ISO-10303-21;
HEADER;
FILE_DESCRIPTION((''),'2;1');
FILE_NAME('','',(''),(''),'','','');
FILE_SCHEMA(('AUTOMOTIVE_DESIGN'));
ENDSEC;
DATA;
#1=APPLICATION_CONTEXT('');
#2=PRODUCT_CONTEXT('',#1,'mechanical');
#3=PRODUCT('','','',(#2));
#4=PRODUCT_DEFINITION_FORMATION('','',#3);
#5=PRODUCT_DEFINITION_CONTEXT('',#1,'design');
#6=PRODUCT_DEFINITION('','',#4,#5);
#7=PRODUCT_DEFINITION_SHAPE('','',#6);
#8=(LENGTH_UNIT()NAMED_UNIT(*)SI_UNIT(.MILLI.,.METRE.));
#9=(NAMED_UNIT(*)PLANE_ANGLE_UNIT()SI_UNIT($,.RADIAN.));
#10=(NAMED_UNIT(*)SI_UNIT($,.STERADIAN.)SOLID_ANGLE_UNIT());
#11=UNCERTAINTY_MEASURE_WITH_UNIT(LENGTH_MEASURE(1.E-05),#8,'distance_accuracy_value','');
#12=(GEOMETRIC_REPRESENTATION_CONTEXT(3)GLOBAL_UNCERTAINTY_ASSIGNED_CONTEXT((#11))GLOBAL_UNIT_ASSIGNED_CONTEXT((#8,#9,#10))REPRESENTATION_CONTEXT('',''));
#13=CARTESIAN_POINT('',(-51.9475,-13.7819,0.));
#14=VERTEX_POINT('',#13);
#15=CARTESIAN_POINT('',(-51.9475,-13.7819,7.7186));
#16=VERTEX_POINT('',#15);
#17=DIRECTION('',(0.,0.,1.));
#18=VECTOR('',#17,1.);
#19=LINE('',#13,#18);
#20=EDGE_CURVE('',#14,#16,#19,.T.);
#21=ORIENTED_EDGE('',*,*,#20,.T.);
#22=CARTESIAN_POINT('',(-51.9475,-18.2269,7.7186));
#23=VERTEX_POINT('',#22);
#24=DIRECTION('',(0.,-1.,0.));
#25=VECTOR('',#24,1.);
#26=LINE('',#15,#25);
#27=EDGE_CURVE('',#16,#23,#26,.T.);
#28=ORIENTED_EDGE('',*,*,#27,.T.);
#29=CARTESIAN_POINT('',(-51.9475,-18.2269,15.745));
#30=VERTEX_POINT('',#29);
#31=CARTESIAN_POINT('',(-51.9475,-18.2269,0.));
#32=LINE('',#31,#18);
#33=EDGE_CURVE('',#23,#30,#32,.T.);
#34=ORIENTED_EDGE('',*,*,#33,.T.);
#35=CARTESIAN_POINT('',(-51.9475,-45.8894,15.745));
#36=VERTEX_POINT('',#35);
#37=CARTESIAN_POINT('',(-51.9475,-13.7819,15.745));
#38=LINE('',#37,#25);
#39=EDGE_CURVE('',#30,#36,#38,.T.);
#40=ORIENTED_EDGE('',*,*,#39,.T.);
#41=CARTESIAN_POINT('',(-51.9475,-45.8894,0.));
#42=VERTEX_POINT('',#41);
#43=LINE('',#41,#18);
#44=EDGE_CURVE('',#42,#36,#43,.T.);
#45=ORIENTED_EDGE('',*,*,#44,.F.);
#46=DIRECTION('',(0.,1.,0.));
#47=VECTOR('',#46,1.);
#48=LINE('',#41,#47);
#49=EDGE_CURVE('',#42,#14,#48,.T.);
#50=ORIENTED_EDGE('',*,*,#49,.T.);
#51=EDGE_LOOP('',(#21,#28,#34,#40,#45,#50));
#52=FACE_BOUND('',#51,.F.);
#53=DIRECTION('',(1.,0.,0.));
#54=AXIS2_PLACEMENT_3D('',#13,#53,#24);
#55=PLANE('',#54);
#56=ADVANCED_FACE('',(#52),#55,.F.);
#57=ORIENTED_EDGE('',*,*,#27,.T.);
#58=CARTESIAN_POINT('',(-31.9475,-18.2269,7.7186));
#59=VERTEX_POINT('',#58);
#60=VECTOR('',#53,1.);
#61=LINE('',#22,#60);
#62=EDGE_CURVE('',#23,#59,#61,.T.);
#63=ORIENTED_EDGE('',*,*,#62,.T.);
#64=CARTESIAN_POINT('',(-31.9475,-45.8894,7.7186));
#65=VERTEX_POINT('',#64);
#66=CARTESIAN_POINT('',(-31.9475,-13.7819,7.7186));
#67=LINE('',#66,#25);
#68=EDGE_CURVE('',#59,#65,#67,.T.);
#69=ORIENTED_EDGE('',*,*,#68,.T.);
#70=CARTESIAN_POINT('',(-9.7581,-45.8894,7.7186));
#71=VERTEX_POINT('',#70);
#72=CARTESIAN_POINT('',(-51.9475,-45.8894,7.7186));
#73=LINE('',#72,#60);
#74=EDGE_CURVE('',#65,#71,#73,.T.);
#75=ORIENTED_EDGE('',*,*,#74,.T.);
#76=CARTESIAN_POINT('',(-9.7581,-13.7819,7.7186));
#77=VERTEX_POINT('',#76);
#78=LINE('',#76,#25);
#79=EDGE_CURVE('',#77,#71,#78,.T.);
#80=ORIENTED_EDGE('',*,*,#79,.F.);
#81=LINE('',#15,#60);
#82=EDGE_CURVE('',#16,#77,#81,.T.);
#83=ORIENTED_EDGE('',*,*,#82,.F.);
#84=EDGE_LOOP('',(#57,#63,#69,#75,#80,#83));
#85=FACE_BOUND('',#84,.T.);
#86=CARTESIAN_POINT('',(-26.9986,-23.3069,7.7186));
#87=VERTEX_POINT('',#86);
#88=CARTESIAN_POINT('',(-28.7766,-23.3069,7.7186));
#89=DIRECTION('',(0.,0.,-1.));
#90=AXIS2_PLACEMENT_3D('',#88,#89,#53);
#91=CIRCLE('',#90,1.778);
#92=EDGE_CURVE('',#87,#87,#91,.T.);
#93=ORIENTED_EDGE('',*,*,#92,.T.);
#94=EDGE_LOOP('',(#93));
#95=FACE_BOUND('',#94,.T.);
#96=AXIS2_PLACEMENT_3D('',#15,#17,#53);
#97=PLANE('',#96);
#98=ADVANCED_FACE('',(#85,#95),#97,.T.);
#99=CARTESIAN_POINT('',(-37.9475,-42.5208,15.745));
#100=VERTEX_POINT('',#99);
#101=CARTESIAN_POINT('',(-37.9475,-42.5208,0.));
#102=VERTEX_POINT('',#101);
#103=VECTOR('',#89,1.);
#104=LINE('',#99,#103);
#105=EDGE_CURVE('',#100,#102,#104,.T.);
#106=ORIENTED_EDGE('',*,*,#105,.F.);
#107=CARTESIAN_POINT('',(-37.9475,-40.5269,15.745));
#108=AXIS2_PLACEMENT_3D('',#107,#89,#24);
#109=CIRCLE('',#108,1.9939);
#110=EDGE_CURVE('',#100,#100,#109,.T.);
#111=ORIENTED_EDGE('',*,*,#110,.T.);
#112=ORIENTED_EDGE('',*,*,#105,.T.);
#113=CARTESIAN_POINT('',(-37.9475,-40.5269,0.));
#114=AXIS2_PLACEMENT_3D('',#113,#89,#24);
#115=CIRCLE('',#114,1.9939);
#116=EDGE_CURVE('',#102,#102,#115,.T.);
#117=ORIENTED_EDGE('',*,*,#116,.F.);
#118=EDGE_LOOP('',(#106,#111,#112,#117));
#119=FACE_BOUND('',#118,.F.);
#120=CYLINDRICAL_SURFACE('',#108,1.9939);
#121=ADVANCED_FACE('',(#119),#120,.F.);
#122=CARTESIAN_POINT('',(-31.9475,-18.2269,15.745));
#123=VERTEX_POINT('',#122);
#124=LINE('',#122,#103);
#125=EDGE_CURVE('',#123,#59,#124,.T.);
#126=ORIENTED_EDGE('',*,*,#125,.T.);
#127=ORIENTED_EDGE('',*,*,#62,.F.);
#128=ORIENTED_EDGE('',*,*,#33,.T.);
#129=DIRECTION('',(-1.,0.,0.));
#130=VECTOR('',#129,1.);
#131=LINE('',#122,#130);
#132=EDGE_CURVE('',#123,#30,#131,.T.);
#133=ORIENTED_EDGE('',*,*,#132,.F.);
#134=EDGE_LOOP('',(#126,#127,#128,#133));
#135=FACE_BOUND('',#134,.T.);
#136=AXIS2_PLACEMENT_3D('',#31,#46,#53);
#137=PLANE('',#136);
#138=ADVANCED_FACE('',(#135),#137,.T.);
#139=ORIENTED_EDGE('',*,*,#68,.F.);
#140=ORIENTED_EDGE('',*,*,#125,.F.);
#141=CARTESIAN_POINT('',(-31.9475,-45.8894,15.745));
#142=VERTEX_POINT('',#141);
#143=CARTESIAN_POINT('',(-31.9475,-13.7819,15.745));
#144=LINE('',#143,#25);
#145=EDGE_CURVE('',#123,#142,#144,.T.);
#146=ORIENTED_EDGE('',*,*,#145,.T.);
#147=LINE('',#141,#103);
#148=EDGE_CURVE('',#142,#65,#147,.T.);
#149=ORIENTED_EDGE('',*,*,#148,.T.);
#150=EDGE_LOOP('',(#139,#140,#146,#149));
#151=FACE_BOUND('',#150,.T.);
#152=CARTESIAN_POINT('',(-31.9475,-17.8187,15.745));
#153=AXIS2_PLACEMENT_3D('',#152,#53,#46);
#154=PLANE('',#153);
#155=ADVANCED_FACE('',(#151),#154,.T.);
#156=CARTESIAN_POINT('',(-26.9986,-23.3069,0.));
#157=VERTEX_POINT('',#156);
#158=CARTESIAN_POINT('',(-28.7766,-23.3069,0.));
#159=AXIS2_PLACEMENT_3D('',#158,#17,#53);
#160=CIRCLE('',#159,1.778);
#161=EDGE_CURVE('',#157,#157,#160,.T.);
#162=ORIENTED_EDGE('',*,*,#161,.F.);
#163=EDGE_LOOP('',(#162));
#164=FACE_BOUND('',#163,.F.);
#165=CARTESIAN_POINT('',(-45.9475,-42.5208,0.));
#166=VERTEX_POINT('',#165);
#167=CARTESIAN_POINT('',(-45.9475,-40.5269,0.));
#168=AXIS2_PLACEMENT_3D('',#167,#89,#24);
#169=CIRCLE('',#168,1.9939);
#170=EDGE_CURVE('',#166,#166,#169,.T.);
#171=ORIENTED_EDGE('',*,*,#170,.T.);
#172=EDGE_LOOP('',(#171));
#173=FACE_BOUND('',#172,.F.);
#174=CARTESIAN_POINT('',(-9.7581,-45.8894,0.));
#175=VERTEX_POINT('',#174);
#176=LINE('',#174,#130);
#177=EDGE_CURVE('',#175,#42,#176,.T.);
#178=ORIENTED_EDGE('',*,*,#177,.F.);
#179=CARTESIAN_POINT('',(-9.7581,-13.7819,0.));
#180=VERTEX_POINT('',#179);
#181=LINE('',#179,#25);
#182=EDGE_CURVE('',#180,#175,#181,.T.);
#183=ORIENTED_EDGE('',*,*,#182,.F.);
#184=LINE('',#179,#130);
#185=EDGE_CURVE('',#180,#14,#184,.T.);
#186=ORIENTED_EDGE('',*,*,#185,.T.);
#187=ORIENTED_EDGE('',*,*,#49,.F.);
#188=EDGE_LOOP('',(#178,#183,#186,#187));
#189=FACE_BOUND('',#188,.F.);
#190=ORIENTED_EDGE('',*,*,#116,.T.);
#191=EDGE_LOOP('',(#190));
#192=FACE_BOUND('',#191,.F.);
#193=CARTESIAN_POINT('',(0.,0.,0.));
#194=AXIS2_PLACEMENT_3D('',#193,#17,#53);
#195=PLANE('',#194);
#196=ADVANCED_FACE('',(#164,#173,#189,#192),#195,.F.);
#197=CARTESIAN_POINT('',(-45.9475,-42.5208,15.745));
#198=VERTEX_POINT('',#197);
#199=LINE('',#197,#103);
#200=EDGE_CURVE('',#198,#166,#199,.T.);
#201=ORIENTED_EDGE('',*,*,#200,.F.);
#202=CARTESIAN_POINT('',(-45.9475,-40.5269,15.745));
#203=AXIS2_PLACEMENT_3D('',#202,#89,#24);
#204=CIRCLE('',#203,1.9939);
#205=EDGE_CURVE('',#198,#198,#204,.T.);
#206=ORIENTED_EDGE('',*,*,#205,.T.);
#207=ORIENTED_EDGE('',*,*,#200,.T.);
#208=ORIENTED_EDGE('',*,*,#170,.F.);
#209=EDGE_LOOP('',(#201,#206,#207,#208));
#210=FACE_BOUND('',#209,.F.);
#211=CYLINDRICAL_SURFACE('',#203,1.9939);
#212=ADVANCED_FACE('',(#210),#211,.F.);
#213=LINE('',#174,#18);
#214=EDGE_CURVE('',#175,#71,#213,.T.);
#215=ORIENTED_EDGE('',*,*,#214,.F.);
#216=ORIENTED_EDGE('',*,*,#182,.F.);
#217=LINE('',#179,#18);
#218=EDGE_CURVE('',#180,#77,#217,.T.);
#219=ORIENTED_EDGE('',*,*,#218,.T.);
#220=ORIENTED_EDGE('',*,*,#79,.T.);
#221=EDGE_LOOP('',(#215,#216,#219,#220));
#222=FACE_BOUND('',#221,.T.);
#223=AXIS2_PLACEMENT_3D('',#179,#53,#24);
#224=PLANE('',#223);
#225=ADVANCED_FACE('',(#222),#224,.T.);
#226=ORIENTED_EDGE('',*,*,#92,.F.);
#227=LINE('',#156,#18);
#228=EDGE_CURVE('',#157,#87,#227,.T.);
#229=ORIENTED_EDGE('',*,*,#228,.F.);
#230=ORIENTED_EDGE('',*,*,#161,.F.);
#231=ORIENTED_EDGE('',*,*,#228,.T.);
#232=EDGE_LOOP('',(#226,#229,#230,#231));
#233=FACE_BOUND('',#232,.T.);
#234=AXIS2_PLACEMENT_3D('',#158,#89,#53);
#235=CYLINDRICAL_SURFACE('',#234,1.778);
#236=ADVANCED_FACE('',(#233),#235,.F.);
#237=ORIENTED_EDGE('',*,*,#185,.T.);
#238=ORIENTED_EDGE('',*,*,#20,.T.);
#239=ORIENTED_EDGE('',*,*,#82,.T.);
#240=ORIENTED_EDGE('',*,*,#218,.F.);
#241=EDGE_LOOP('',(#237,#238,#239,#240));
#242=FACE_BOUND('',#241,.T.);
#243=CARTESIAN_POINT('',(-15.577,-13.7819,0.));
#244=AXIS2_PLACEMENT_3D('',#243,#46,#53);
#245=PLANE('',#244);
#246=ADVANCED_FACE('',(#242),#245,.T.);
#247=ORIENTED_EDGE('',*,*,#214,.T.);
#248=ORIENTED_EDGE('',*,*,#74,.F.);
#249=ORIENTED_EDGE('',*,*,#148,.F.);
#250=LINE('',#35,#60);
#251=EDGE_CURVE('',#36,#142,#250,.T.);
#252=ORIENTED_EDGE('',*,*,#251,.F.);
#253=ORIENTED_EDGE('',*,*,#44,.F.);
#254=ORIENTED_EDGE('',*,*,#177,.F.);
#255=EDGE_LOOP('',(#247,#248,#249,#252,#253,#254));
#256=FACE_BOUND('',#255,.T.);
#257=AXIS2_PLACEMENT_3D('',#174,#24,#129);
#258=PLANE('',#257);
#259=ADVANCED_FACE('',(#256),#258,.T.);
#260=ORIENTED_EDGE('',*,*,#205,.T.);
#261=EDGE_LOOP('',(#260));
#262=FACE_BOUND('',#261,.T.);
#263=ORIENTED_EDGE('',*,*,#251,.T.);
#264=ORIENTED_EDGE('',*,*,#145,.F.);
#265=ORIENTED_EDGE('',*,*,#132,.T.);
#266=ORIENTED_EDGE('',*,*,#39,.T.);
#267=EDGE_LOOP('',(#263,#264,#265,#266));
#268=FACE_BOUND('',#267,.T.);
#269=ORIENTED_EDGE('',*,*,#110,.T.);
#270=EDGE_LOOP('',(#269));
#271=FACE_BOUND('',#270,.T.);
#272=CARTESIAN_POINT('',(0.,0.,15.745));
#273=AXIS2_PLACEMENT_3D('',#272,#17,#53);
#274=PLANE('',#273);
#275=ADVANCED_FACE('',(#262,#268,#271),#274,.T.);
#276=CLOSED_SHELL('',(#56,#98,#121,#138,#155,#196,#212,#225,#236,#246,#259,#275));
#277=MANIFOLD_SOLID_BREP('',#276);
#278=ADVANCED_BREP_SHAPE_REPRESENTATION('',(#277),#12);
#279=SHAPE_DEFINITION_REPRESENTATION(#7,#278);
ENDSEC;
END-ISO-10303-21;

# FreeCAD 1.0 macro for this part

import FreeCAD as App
import Part
import Sketcher
from FreeCAD import Vector
Q = App.Units.Quantity

doc = App.newDocument("Part")
body = doc.addObject("PartDesign::Body", "Body")

# Sketch on XY plane
sketch1 = body.newObject("Sketcher::SketchObject", "Sketch")
sketch1.AttachmentSupport = (doc.getObject("XY_Plane"), [""])
sketch1.MapMode = "FlatFace"
sketch1.addGeometry([
    Part.LineSegment(Vector(-9.8, -13.8, 0), Vector(-51.9, -13.8, 0)),  # 0
    Part.LineSegment(Vector(-51.9, -13.8, 0), Vector(-51.9, -45.9, 0)),  # 1
    Part.LineSegment(Vector(-51.9, -45.9, 0), Vector(-9.8, -45.9, 0)),  # 2
    Part.LineSegment(Vector(-9.8, -45.9, 0), Vector(-9.8, -13.8, 0)),  # 3
    Part.Circle(Vector(-28.8, -23.3, 0), Vector(0, 0, 1), 1.8),  # 4
], False)
sketch1.addConstraint([
    Sketcher.Constraint("Coincident", 0, 2, 1, 1),
    Sketcher.Constraint("Coincident", 1, 2, 2, 1),
    Sketcher.Constraint("Coincident", 2, 2, 3, 1),
    Sketcher.Constraint("Coincident", 3, 2, 0, 1),
    Sketcher.Constraint("Horizontal", 0),
    Sketcher.Constraint("Vertical", 1),
    Sketcher.Constraint("Horizontal", 2),
    Sketcher.Constraint("Vertical", 3),
    Sketcher.Constraint("Diameter", 4, Q("0.14 in")),
    Sketcher.Constraint("DistanceX", 0, 2, 0, 1, Q("1.661 in")),
    Sketcher.Constraint("DistanceY", 4, 3, 0, 2, Q("0.375 in")),
    Sketcher.Constraint("DistanceY", 1, 2, 1, 1, 32.1075),
    Sketcher.Constraint("DistanceY", 4, 3, -1, 1, Q("0.9176 in")),
    Sketcher.Constraint("DistanceX", 4, 3, -1, 1, 28.7766),
    Sketcher.Constraint("DistanceX", 0, 2, -1, 1, 51.9475),
])
pad1 = body.newObject("PartDesign::Pad", "Pad")
pad1.Profile = sketch1
pad1.Length = 15.745

# Sketch on XY plane
sketch2 = body.newObject("Sketcher::SketchObject", "Sketch001")
sketch2.AttachmentSupport = (doc.getObject("XY_Plane"), [""])
sketch2.MapMode = "FlatFace"
sketch2.AttachmentOffset = App.Placement(Vector(0, 0, 15.745), App.Rotation())
sketch2.addGeometry(Part.Circle(Vector(-45.9, -40.5, 0), Vector(0, 0, 1), 2), False)
sketch2.addConstraint([
    Sketcher.Constraint("Diameter", 0, Q("0.157 in")),
    Sketcher.Constraint("DistanceX", 0, 3, -1, 1, 45.9475),
    Sketcher.Constraint("DistanceY", 0, 3, -1, 1, 40.527),
])
doc.recompute()
hole = body.newObject("PartDesign::Hole", "Hole")
hole.Profile = sketch2
hole.ThreadType = "None"
hole.Diameter = Q("0.157 in")
hole.DepthType = "ThroughAll"

# Sketch on XY plane
sketch3 = body.newObject("Sketcher::SketchObject", "Sketch002")
sketch3.AttachmentSupport = (doc.getObject("XY_Plane"), [""])
sketch3.MapMode = "FlatFace"
sketch3.AttachmentOffset = App.Placement(Vector(0, 0, 15.745), App.Rotation())
sketch3.addGeometry(Part.Circle(Vector(-37.9, -40.5, 0), Vector(0, 0, 1), 2), False)
sketch3.addConstraint([
    Sketcher.Constraint("Diameter", 0, Q("0.157 in")),
    Sketcher.Constraint("DistanceX", 0, 3, -1, 1, Q("1.494 in")),
    Sketcher.Constraint("DistanceY", 0, 3, -1, 1, 40.527),
])
doc.recompute()
hole2 = body.newObject("PartDesign::Hole", "Hole001")
hole2.Profile = sketch3
hole2.ThreadType = "None"
hole2.Diameter = Q("0.157 in")
hole2.DepthType = "ThroughAll"

# Sketch on XY plane
sketch4 = body.newObject("Sketcher::SketchObject", "Sketch003")
sketch4.AttachmentSupport = (doc.getObject("XY_Plane"), [""])
sketch4.MapMode = "FlatFace"
sketch4.AttachmentOffset = App.Placement(Vector(0, 0, 15.745), App.Rotation())
sketch4.addGeometry([
    Part.LineSegment(Vector(-32, -14, 0), Vector(-32, -46, 0)),
    Part.LineSegment(Vector(-32, -46, 0), Vector(-10, -46, 0)),
    Part.LineSegment(Vector(-10, -46, 0), Vector(-10, -14, 0)),
    Part.LineSegment(Vector(-10, -14, 0), Vector(-32, -14, 0)),
], False)
sketch4.addConstraint([
    Sketcher.Constraint("Coincident", 0, 2, 1, 1),
    Sketcher.Constraint("Coincident", 1, 2, 2, 1),
    Sketcher.Constraint("Coincident", 2, 2, 3, 1),
    Sketcher.Constraint("Coincident", 3, 2, 0, 1),
    Sketcher.Constraint("Vertical", 0),
    Sketcher.Constraint("Horizontal", 1),
    Sketcher.Constraint("Vertical", 2),
    Sketcher.Constraint("Horizontal", 3),
    Sketcher.Constraint("DistanceX", 1, 1, 1, 2, Q("0.8736 in")),
    Sketcher.Constraint("DistanceY", 0, 2, 0, 1, 32.1075),
    Sketcher.Constraint("DistanceY", 2, 2, -1, 1, Q("0.5426 in")),
    Sketcher.Constraint("DistanceX", 0, 2, -1, 1, 31.9475),
])
pocket1 = body.newObject("PartDesign::Pocket", "Pocket")
pocket1.Profile = sketch4
pocket1.Length = Q("0.316 in")

# Sketch on XZ plane
sketch5 = body.newObject("Sketcher::SketchObject", "Sketch004")
sketch5.AttachmentSupport = (doc.getObject("XZ_Plane"), [""])
sketch5.MapMode = "FlatFace"
sketch5.AttachmentOffset = App.Placement(Vector(0, 0, 0.5425945 * 25.4), App.Rotation())
sketch5.addGeometry([
    Part.LineSegment(Vector(-52, 16, 0), Vector(-32, 16, 0)),
    Part.LineSegment(Vector(-32, 16, 0), Vector(-32, 8, 0)),
    Part.LineSegment(Vector(-32, 8, 0), Vector(-52, 8, 0)),
    Part.LineSegment(Vector(-52, 8, 0), Vector(-52, 16, 0)),
], False)
sketch5.addConstraint([
    Sketcher.Constraint("Coincident", 0, 2, 1, 1),
    Sketcher.Constraint("Coincident", 1, 2, 2, 1),
    Sketcher.Constraint("Coincident", 2, 2, 3, 1),
    Sketcher.Constraint("Coincident", 3, 2, 0, 1),
    Sketcher.Constraint("Horizontal", 0),
    Sketcher.Constraint("Vertical", 1),
    Sketcher.Constraint("Horizontal", 2),
    Sketcher.Constraint("Vertical", 3),
    Sketcher.Constraint("DistanceY", 1, 2, 1, 1, Q("0.316 in")),
    Sketcher.Constraint("DistanceX", 0, 1, 0, 2, Q("0.7874 in")),
    Sketcher.Constraint("DistanceX", 0, 2, -1, 1, 31.9475),
    Sketcher.Constraint("DistanceY", -1, 1, 0, 2, 15.745),
])
pocket2 = body.newObject("PartDesign::Pocket", "Pocket001")
pocket2.Profile = sketch5
pocket2.Length = Q("0.175 in")
pocket2.Reversed = True

doc.recompute()
